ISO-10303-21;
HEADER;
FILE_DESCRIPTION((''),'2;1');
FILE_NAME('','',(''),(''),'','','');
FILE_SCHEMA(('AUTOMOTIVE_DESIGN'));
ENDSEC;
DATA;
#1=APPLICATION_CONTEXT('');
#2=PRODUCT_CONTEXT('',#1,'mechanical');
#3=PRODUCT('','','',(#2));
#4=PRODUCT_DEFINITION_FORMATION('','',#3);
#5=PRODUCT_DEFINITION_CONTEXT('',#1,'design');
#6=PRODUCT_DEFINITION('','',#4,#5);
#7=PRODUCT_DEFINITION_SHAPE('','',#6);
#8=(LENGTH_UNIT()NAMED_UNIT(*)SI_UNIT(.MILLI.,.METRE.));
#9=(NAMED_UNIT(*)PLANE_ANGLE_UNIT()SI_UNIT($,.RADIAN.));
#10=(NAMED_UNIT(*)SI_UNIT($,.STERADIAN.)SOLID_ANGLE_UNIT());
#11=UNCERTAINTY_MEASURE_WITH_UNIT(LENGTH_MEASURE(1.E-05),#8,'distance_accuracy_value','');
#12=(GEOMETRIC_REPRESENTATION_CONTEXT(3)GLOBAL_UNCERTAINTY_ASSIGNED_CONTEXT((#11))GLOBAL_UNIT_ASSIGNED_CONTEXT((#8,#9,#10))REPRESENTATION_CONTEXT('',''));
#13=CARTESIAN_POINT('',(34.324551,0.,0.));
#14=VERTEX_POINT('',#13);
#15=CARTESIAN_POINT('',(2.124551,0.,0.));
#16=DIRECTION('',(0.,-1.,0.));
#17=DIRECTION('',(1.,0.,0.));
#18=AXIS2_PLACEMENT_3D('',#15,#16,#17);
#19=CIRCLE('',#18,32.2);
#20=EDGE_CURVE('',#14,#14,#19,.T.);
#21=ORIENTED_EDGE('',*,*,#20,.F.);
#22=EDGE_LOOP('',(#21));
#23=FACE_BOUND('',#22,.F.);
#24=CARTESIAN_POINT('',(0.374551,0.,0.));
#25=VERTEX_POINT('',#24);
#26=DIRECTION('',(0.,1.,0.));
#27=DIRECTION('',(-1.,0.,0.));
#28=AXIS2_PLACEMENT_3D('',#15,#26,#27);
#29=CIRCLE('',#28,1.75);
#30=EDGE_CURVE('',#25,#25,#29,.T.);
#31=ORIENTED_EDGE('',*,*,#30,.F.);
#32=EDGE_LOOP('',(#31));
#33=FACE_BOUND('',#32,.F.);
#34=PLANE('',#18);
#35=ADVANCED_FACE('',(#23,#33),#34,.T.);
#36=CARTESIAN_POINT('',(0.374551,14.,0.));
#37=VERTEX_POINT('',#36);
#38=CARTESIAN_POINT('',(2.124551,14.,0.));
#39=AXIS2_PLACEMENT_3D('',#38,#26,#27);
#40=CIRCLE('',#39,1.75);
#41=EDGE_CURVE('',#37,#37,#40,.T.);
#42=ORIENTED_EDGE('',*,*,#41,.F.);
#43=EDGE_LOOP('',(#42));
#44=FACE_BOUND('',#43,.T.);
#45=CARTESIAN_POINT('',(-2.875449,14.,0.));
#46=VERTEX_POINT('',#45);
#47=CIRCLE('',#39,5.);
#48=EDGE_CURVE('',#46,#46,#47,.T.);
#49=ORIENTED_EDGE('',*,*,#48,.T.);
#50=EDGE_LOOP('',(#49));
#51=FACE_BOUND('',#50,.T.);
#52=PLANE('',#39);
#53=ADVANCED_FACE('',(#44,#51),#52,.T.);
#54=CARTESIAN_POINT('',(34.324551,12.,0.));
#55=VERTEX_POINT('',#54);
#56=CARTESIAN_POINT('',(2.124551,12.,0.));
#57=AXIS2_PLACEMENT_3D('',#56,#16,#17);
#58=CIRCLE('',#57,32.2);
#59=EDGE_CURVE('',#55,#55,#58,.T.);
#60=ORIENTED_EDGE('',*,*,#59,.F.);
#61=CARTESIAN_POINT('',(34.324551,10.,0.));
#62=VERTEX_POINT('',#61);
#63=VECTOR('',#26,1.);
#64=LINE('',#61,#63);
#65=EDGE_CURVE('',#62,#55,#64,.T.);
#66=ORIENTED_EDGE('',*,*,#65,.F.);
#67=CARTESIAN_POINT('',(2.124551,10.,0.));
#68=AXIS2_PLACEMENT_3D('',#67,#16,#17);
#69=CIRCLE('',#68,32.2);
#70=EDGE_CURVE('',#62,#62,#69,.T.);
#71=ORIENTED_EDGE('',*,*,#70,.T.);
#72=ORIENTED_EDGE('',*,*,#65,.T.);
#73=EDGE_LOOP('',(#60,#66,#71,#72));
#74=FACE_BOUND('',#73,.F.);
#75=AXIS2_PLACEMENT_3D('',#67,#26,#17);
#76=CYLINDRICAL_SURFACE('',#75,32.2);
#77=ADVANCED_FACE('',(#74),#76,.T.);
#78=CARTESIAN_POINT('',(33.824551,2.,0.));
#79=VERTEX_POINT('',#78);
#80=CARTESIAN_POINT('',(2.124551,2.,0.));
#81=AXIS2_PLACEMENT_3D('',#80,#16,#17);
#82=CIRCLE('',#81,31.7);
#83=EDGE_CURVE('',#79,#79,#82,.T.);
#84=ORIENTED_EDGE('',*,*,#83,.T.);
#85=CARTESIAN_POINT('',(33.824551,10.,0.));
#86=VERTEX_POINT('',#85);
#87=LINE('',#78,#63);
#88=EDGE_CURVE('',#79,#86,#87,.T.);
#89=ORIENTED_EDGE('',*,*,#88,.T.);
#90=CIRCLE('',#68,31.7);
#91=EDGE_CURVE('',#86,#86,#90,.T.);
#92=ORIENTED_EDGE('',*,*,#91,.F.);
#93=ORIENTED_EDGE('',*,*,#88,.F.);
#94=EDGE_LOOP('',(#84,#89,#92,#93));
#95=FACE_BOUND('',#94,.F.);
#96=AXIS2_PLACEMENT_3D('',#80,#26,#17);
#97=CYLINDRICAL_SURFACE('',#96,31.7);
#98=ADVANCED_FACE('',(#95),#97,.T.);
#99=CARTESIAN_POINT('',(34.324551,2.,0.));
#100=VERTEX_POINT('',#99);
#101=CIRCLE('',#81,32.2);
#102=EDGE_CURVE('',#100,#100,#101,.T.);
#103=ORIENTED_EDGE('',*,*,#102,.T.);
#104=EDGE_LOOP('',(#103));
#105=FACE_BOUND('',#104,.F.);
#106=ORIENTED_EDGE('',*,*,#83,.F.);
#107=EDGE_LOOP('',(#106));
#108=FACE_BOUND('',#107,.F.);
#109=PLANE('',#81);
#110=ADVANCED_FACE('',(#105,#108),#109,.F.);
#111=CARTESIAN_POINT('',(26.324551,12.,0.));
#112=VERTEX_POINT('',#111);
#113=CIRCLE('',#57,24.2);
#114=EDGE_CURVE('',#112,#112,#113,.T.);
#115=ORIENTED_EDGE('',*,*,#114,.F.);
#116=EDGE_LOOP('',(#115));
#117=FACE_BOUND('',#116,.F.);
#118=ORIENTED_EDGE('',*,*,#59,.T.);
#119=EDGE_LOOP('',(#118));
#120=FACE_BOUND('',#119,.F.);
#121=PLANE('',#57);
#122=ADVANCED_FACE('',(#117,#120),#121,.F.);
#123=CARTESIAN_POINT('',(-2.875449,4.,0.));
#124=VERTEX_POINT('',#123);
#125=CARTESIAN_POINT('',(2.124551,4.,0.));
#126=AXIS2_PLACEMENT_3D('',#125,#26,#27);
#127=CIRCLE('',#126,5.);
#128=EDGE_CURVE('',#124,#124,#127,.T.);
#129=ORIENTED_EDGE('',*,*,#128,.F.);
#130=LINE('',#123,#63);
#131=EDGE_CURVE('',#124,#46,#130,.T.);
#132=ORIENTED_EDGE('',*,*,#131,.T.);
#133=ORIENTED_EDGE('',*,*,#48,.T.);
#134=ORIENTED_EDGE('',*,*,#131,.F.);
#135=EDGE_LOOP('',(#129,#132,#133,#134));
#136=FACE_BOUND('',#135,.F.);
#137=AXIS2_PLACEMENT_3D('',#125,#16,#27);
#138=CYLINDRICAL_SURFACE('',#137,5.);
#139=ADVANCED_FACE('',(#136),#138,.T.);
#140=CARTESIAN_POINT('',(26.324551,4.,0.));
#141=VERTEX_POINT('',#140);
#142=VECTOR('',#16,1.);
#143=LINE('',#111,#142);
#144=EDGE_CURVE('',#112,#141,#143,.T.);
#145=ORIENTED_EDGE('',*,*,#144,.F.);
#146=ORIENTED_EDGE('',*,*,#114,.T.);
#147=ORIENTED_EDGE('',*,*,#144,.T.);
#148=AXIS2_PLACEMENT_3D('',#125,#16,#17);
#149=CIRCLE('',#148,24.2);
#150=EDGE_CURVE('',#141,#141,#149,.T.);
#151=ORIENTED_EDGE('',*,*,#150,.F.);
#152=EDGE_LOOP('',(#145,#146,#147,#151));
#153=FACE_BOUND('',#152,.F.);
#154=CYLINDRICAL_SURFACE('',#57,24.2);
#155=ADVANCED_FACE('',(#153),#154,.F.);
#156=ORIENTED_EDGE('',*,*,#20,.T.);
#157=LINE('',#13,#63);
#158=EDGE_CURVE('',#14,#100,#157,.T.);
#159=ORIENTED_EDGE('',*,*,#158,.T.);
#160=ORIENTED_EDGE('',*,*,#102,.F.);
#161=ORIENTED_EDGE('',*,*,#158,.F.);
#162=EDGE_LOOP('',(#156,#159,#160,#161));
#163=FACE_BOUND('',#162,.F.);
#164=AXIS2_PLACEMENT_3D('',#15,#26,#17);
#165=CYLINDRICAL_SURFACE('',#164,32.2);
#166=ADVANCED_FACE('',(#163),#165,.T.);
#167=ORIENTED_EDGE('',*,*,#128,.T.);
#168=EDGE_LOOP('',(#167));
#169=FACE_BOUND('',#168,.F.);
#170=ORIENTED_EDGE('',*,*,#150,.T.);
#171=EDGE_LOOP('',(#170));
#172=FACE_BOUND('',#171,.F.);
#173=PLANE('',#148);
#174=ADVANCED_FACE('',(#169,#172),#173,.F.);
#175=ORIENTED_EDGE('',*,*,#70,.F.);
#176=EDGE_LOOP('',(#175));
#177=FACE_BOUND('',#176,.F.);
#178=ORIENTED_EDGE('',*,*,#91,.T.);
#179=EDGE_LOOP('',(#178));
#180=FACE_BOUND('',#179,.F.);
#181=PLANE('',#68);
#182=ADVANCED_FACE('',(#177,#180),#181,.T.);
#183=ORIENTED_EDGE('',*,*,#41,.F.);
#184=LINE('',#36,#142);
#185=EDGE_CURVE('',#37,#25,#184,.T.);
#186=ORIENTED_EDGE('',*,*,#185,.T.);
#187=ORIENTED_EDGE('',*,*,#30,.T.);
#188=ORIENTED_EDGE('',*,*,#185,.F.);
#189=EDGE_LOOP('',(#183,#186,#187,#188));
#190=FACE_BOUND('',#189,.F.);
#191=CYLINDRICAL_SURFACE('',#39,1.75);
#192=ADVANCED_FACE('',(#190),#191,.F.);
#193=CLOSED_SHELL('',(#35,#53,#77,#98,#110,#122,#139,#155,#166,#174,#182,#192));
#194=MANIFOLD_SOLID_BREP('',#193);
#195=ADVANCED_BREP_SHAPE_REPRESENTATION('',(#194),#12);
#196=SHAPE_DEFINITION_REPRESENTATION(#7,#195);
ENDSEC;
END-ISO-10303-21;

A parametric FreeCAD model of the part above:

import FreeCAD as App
import Part
import Sketcher
Q = App.Units.Quantity


def add_polygon(sketch, points):
    """Adds a closed chain of lines whose ends are joined by coincident constraints."""
    first, n = sketch.GeometryCount, len(points)
    for a, b in zip(points, points[1:] + points[:1]):
        sketch.addGeometry(Part.LineSegment(App.Vector(*a, 0), App.Vector(*b, 0)), False)
    for i in range(n):
        sketch.addConstraint(Sketcher.Constraint("Coincident", first + i, 2, first + (i + 1) % n, 1))

doc = App.newDocument("Part")
body = doc.addObject("PartDesign::Body", "Body")

# Sketch on XY plane
sketch1 = body.newObject("Sketcher::SketchObject", "Sketch")
sketch1.AttachmentSupport = (doc.getObject("XY_Plane"), [""])
sketch1.MapMode = "FlatFace"
add_polygon(sketch1, [(2.124551, 4), (2.124551, 0), (34.324551, 0), (34.324551, 2), (33.824551, 2), (33.824551, 10), (34.324551, 10), (34.324551, 12), (26.324551, 12), (26.324551, 4)])  # lines 0-9
sketch1.addGeometry(Part.LineSegment(App.Vector(2.124551, 12, 0), App.Vector(2.124551, 0, 0)), True)  # axis
sketch1.addConstraint(Sketcher.Constraint("Vertical", 0))
sketch1.addConstraint(Sketcher.Constraint("Horizontal", 1))
sketch1.addConstraint(Sketcher.Constraint("Vertical", 2))
sketch1.addConstraint(Sketcher.Constraint("Horizontal", 3))
sketch1.addConstraint(Sketcher.Constraint("Vertical", 4))
sketch1.addConstraint(Sketcher.Constraint("Horizontal", 5))
sketch1.addConstraint(Sketcher.Constraint("Vertical", 6))
sketch1.addConstraint(Sketcher.Constraint("Horizontal", 7))
sketch1.addConstraint(Sketcher.Constraint("Vertical", 8))
sketch1.addConstraint(Sketcher.Constraint("Horizontal", 9))
sketch1.addConstraint(Sketcher.Constraint("Vertical", 10))
sketch1.addConstraint(Sketcher.Constraint("Coincident", 10, 2, 0, 2))
sketch1.addConstraint(Sketcher.Constraint("PointOnObject", 0, 2, -1))
sketch1.addConstraint(Sketcher.Constraint("Horizontal", 7, 2, 10, 1))
sketch1.addConstraint(Sketcher.Constraint("Vertical", 2, 2, 5, 2))
sketch1.addConstraint(Sketcher.Constraint("Equal", 7, 4))
sketch1.addConstraint(Sketcher.Constraint("Equal", 2, 6))
sketch1.addConstraint(Sketcher.Constraint("Equal", 4, 8))
sketch1.addConstraint(Sketcher.Constraint("DistanceX", 7, 2, 7, 1, Q("8 mm")))
sketch1.addConstraint(Sketcher.Constraint("DistanceY", 0, 2, 0, 1, Q("4 mm")))
sketch1.addConstraint(Sketcher.Constraint("DistanceX", 1, 1, 1, 2, Q("32.2 mm")))
sketch1.addConstraint(Sketcher.Constraint("DistanceX", 3, 2, 3, 1, Q("0.5 mm")))
sketch1.addConstraint(Sketcher.Constraint("DistanceX", -1, 1, 0, 2, Q("2.124551 mm")))
revolution = body.newObject("PartDesign::Revolution", "Revolution")
revolution.Profile = sketch1
revolution.ReferenceAxis = (sketch1, ["Axis0"])
revolution.Angle = 360

# Sketch on XZ plane
sketch2 = body.newObject("Sketcher::SketchObject", "Sketch001")
sketch2.AttachmentSupport = (doc.getObject("XZ_Plane"), [""])
sketch2.MapMode = "FlatFace"
sketch2.AttachmentOffset = App.Placement(App.Vector(0, 0, -4), App.Rotation())
sketch2.addGeometry(Part.Circle(App.Vector(2.124551, 0, 0), App.Vector(0, 0, 1), 5), False)
sketch2.addConstraint(Sketcher.Constraint("PointOnObject", 0, 3, -1))
sketch2.addConstraint(Sketcher.Constraint("Diameter", 0, Q("10 mm")))
sketch2.addConstraint(Sketcher.Constraint("DistanceX", -1, 1, 0, 3, Q("2.124551 mm")))
pad1 = body.newObject("PartDesign::Pad", "Pad")
pad1.Profile = sketch2
pad1.Length = 10
pad1.Reversed = True

# Sketch on XZ plane
sketch3 = body.newObject("Sketcher::SketchObject", "Sketch002")
sketch3.AttachmentSupport = (doc.getObject("XZ_Plane"), [""])
sketch3.MapMode = "FlatFace"
sketch3.AttachmentOffset = App.Placement(App.Vector(0, 0, -14), App.Rotation())
sketch3.addGeometry(Part.Circle(App.Vector(2.124551, 0, 0), App.Vector(0, 0, 1), 1.75), False)
sketch3.addConstraint(Sketcher.Constraint("PointOnObject", 0, 3, -1))
sketch3.addConstraint(Sketcher.Constraint("Diameter", 0, Q("3.5 mm")))
sketch3.addConstraint(Sketcher.Constraint("DistanceX", -1, 1, 0, 3, Q("2.124551 mm")))
pocket1 = body.newObject("PartDesign::Pocket", "Pocket")
pocket1.Profile = sketch3
pocket1.Length = 25
pocket1.Reversed = True

doc.recompute()
